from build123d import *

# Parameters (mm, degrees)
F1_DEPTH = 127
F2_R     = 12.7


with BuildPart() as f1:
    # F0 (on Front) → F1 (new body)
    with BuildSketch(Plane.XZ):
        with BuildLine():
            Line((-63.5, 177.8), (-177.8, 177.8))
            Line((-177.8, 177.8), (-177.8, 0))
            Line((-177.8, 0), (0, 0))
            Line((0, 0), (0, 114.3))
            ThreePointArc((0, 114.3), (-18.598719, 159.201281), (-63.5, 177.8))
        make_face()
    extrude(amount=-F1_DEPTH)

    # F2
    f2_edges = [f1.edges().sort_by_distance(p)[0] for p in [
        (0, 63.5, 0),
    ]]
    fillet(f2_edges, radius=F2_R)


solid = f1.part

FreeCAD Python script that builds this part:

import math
import FreeCAD as App
import Part
import Sketcher
Q = App.Units.Quantity


def edges_at(feature, points):
    """Names of the edges that pass closest to the given points."""
    edges = feature.Shape.Edges
    near = lambda p: min(range(len(edges)), key=lambda i: edges[i].distToShape(Part.Vertex(*p))[0])
    return sorted({f"Edge{near(p) + 1}" for p in points})

doc = App.newDocument("Part")
body = doc.addObject("PartDesign::Body", "Body")

sketch1 = body.newObject("Sketcher::SketchObject", "Sketch")
sketch1.AttachmentSupport = (doc.getObject("XZ_Plane"), [""])
sketch1.MapMode = "FlatFace"
sketch1.addGeometry(Part.LineSegment(App.Vector(-63.5, 177.8, 0), App.Vector(-177.8, 177.8, 0)), False)
sketch1.addGeometry(Part.LineSegment(App.Vector(-177.8, 177.8, 0), App.Vector(-177.8, 0, 0)), False)
sketch1.addGeometry(Part.LineSegment(App.Vector(-177.8, 0, 0), App.Vector(0, 0, 0)), False)
sketch1.addGeometry(Part.LineSegment(App.Vector(0, 0, 0), App.Vector(0, 114.3, 0)), False)
sketch1.addGeometry(Part.ArcOfCircle(Part.Circle(App.Vector(-63.499999, 114.300001, 0), App.Vector(0, 0, 1), 63.499999), math.radians(-0.000001), math.radians(90.000001)), False)
sketch1.addConstraint(Sketcher.Constraint("Coincident", 0, 2, 1, 1))
sketch1.addConstraint(Sketcher.Constraint("Coincident", 1, 2, 2, 1))
sketch1.addConstraint(Sketcher.Constraint("Coincident", 2, 2, 3, 1))
sketch1.addConstraint(Sketcher.Constraint("Tangent", 3, 2, 4, 1))
sketch1.addConstraint(Sketcher.Constraint("Tangent", 4, 2, 0, 1))
sketch1.addConstraint(Sketcher.Constraint("Horizontal", 0))
sketch1.addConstraint(Sketcher.Constraint("Vertical", 1))
sketch1.addConstraint(Sketcher.Constraint("Horizontal", 2))
sketch1.addConstraint(Sketcher.Constraint("Vertical", 3))
sketch1.addConstraint(Sketcher.Constraint("Coincident", 2, 2, -1, 1))
sketch1.addConstraint(Sketcher.Constraint("Equal", 2, 1))
sketch1.addConstraint(Sketcher.Constraint("Radius", 4, Q("2.4999999 in")))
sketch1.addConstraint(Sketcher.Constraint("DistanceX", 2, 1, 2, 2, Q("7 in")))
pad1 = body.newObject("PartDesign::Pad", "Pad")
pad1.Profile = sketch1
pad1.Length = Q("5 in")
pad1.Reversed = True
doc.recompute()

fillet = body.newObject("PartDesign::Fillet", "Fillet")
fillet.Base = (pad1, edges_at(pad1, [(0, 63.5, 0)]))
fillet.Radius = Q("0.5 in")

doc.recompute()
